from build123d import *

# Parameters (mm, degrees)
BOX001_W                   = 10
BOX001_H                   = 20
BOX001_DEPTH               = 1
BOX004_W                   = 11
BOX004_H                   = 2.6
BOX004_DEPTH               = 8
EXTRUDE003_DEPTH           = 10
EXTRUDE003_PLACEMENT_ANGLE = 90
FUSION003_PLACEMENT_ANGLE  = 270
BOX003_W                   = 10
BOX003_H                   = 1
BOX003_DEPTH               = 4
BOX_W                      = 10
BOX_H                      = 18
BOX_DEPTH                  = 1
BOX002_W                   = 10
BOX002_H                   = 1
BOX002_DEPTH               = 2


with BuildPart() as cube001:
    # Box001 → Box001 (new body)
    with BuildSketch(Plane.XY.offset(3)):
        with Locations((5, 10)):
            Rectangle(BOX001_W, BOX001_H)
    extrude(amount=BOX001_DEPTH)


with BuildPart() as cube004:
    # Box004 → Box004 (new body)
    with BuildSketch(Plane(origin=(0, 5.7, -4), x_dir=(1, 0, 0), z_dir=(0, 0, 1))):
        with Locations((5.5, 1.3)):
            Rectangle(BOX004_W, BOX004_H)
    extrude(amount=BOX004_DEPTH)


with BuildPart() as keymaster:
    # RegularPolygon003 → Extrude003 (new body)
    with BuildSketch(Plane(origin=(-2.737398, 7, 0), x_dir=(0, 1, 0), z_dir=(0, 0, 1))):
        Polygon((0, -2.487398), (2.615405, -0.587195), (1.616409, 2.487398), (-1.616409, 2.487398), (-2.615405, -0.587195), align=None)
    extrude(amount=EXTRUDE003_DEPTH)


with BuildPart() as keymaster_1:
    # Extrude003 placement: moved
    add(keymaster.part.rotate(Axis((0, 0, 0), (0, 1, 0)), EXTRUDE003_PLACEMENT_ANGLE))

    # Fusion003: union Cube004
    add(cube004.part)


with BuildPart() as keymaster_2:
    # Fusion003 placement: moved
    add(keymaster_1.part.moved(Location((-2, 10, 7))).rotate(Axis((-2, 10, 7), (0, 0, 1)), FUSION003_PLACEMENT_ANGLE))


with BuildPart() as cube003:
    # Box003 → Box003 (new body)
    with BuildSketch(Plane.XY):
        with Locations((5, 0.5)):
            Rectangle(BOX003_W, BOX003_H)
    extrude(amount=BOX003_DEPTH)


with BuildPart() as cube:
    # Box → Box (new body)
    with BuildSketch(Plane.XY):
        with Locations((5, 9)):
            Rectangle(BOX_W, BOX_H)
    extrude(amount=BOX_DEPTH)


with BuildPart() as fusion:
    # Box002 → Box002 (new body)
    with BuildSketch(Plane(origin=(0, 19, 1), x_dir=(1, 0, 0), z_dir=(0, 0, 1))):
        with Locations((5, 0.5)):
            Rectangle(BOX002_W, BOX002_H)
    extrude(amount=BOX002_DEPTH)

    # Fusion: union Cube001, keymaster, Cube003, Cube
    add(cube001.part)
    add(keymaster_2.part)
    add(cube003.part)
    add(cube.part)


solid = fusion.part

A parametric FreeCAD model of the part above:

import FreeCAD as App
import Part
import Sketcher
from FreeCAD import Vector
Q = App.Units.Quantity


def add_polygon(sketch, points):
    """Adds a closed chain of lines whose ends are joined by coincident constraints."""
    first, n = sketch.GeometryCount, len(points)
    for a, b in zip(points, points[1:] + points[:1]):
        sketch.addGeometry(Part.LineSegment(App.Vector(*a, 0), App.Vector(*b, 0)), False)
    for i in range(n):
        sketch.addConstraint(Sketcher.Constraint("Coincident", first + i, 2, first + (i + 1) % n, 1))

doc = App.newDocument("Part")
body = doc.addObject("PartDesign::Body", "Body")

sketch1 = doc.addObject("Sketcher::SketchObject", "Sketch")
body.addObject(sketch1)
sketch1.AttachmentSupport = (doc.XY_Plane, [""])
sketch1.MapMode = "FlatFace"
sketch1.AttachmentOffset = App.Placement(Vector(0, 0, 3), App.Rotation())
add_polygon(sketch1, [(0, 20), (0, 0), (10, 0), (10, 20)])
sketch1.addConstraint([
    Sketcher.Constraint("Vertical", 0),
    Sketcher.Constraint("Horizontal", 1),
    Sketcher.Constraint("Vertical", 2),
    Sketcher.Constraint("Horizontal", 3),
    Sketcher.Constraint("Coincident", 0, 2, -1, 1),
    Sketcher.Constraint("DistanceX", 1, 1, 1, 2, 10.0),
    Sketcher.Constraint("DistanceY", 0, 2, 0, 1, 20.0),
])
pad1 = doc.addObject("PartDesign::Pad", "Pad")
body.addObject(pad1)
pad1.Profile = sketch1
pad1.Length = 1
body2 = doc.addObject("PartDesign::Body", "Body001")

sketch2 = doc.addObject("Sketcher::SketchObject", "Sketch001")
body2.addObject(sketch2)
sketch2.AttachmentSupport = (doc.getObject("XY_Plane001"), [""])
sketch2.MapMode = "FlatFace"
sketch2.AttachmentOffset = App.Placement(Vector(0, 0, -4), App.Rotation())
add_polygon(sketch2, [(0, 8.3), (0, 5.7), (11, 5.7), (11, 8.3)])
sketch2.addConstraint([
    Sketcher.Constraint("Vertical", 0),
    Sketcher.Constraint("Horizontal", 1),
    Sketcher.Constraint("Vertical", 2),
    Sketcher.Constraint("Horizontal", 3),
    Sketcher.Constraint("PointOnObject", 0, 2, -2),
    Sketcher.Constraint("DistanceX", 1, 1, 1, 2, 11.0),
    Sketcher.Constraint("DistanceY", 0, 2, 0, 1, 2.6),
    Sketcher.Constraint("DistanceY", -1, 1, 0, 2, 5.7),
])
pad2 = doc.addObject("PartDesign::Pad", "Pad001")
body2.addObject(pad2)
pad2.Profile = sketch2
pad2.Length = 8
body3 = doc.addObject("PartDesign::Body", "Body002")

sketch3 = doc.addObject("Sketcher::SketchObject", "Sketch002")
body3.addObject(sketch3)
sketch3.AttachmentSupport = (doc.getObject("XY_Plane002"), [""])
sketch3.MapMode = "FlatFace"
add_polygon(sketch3, [(-0.2, 7), (-2.2, 9.6), (-5.2, 8.6), (-5.2, 5.4), (-2.2, 4.4)])
sketch3.addConstraint([
    Sketcher.Constraint("Vertical", 2),
    Sketcher.Constraint("Vertical", 0, 2, 3, 2),
    Sketcher.Constraint("Equal", 0, 1),
    Sketcher.Constraint("Equal", 1, 3),
    Sketcher.Constraint("Equal", 3, 4),
    Sketcher.Constraint("Angle", 0, Q("126.000001 deg")),
    Sketcher.Constraint("Angle", 1, Q("-161.999997 deg")),
    Sketcher.Constraint("DistanceY", -1, 1, 4, 2, 7.0),
    Sketcher.Constraint("DistanceX", 4, 2, -1, 1, 0.25),
    Sketcher.Constraint("DistanceY", 2, 2, 2, 1, 3.232818),
])
pad3 = doc.addObject("PartDesign::Pad", "Pad002")
body3.addObject(pad3)
pad3.Profile = sketch3
pad3.Length = 10
body4 = doc.addObject("PartDesign::Body", "Body003")
doc.recompute()

body3.Placement = App.Placement(Vector(0, 0, 0), App.Rotation(Vector(0, 1, 0), 90))
boolean = doc.addObject("PartDesign::Boolean", "Boolean")
body4.addObject(boolean)
boolean.Type = "Fuse"
boolean.addObjects([body3])
doc.recompute()

boolean2 = doc.addObject("PartDesign::Boolean", "Boolean001")
body4.addObject(boolean2)
boolean2.Type = "Fuse"
boolean2.addObjects([body2])
body5 = doc.addObject("PartDesign::Body", "Body004")
doc.recompute()

body4.Placement = App.Placement(Vector(-2, 10, 7), App.Rotation(Vector(0, 0, 1), 270))
boolean3 = doc.addObject("PartDesign::Boolean", "Boolean002")
body5.addObject(boolean3)
boolean3.Type = "Fuse"
boolean3.addObjects([body4])
body6 = doc.addObject("PartDesign::Body", "Body005")

sketch4 = doc.addObject("Sketcher::SketchObject", "Sketch003")
body6.addObject(sketch4)
sketch4.AttachmentSupport = (doc.getObject("XY_Plane005"), [""])
sketch4.MapMode = "FlatFace"
add_polygon(sketch4, [(0, 1), (0, 0), (10, 0), (10, 1)])
sketch4.addConstraint([
    Sketcher.Constraint("Vertical", 0),
    Sketcher.Constraint("Horizontal", 1),
    Sketcher.Constraint("Vertical", 2),
    Sketcher.Constraint("Horizontal", 3),
    Sketcher.Constraint("Coincident", 0, 2, -1, 1),
    Sketcher.Constraint("DistanceX", 1, 1, 1, 2, 10.0),
    Sketcher.Constraint("DistanceY", 0, 2, 0, 1, 1.0),
])
pad4 = doc.addObject("PartDesign::Pad", "Pad003")
body6.addObject(pad4)
pad4.Profile = sketch4
pad4.Length = 4
body7 = doc.addObject("PartDesign::Body", "Body006")

sketch5 = doc.addObject("Sketcher::SketchObject", "Sketch004")
body7.addObject(sketch5)
sketch5.AttachmentSupport = (doc.getObject("XY_Plane006"), [""])
sketch5.MapMode = "FlatFace"
add_polygon(sketch5, [(0, 18), (0, 0), (10, 0), (10, 18)])
sketch5.addConstraint([
    Sketcher.Constraint("Vertical", 0),
    Sketcher.Constraint("Horizontal", 1),
    Sketcher.Constraint("Vertical", 2),
    Sketcher.Constraint("Horizontal", 3),
    Sketcher.Constraint("Coincident", 0, 2, -1, 1),
    Sketcher.Constraint("DistanceX", 1, 1, 1, 2, 10.0),
    Sketcher.Constraint("DistanceY", 0, 2, 0, 1, 18.0),
])
pad5 = doc.addObject("PartDesign::Pad", "Pad004")
body7.addObject(pad5)
pad5.Profile = sketch5
pad5.Length = 1
body8 = doc.addObject("PartDesign::Body", "Body007")

sketch6 = doc.addObject("Sketcher::SketchObject", "Sketch005")
body8.addObject(sketch6)
sketch6.AttachmentSupport = (doc.getObject("XY_Plane007"), [""])
sketch6.MapMode = "FlatFace"
sketch6.AttachmentOffset = App.Placement(Vector(0, 0, 1), App.Rotation())
add_polygon(sketch6, [(0, 20), (0, 19), (10, 19), (10, 20)])
sketch6.addConstraint([
    Sketcher.Constraint("Vertical", 0),
    Sketcher.Constraint("Horizontal", 1),
    Sketcher.Constraint("Vertical", 2),
    Sketcher.Constraint("Horizontal", 3),
    Sketcher.Constraint("PointOnObject", 0, 2, -2),
    Sketcher.Constraint("DistanceX", 1, 1, 1, 2, 10.0),
    Sketcher.Constraint("DistanceY", 0, 2, 0, 1, 1.0),
    Sketcher.Constraint("DistanceY", -1, 1, 0, 2, 19.0),
])
pad6 = doc.addObject("PartDesign::Pad", "Pad005")
body8.addObject(pad6)
pad6.Profile = sketch6
pad6.Length = 2
doc.recompute()

boolean4 = doc.addObject("PartDesign::Boolean", "Boolean003")
body8.addObject(boolean4)
boolean4.Type = "Fuse"
boolean4.addObjects([body])
doc.recompute()

boolean5 = doc.addObject("PartDesign::Boolean", "Boolean004")
body8.addObject(boolean5)
boolean5.Type = "Fuse"
boolean5.addObjects([body5])
doc.recompute()

boolean6 = doc.addObject("PartDesign::Boolean", "Boolean005")
body8.addObject(boolean6)
boolean6.Type = "Fuse"
boolean6.addObjects([body6])
doc.recompute()

boolean7 = doc.addObject("PartDesign::Boolean", "Boolean006")
body8.addObject(boolean7)
boolean7.Type = "Fuse"
boolean7.addObjects([body7])

doc.recompute()
